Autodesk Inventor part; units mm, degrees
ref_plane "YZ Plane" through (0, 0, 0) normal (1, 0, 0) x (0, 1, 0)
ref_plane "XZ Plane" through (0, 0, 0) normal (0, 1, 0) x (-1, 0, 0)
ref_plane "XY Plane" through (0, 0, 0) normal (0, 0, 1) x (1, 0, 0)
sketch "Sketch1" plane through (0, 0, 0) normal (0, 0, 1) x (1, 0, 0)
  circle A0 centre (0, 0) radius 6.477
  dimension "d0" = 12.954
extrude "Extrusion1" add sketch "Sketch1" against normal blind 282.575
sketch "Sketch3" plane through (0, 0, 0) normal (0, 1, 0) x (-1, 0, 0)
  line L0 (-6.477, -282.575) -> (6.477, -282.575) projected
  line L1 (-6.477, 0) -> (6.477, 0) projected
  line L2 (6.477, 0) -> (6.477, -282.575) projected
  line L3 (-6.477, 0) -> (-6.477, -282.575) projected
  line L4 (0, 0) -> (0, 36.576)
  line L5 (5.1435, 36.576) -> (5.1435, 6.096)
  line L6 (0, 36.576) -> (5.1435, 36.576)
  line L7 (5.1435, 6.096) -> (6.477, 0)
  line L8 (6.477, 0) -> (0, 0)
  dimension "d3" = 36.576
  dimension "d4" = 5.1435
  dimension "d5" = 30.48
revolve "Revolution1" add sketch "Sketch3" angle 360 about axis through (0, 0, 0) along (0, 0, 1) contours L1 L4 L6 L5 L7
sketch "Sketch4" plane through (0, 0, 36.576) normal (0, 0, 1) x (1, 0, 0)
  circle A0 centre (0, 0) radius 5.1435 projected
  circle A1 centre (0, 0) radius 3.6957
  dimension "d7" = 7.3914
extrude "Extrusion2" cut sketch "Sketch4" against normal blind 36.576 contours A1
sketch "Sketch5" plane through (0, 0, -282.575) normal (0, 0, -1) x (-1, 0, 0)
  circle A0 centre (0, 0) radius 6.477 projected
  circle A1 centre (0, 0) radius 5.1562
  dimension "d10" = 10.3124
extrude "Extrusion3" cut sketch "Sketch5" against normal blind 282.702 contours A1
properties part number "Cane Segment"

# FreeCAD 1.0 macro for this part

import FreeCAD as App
import Part
import Sketcher
from FreeCAD import Vector
Q = App.Units.Quantity

doc = App.newDocument("Part")
params = doc.addObject("Spreadsheet::Sheet", "Params")
for row, (alias, value) in enumerate([
    ("sketch1_diameter", "0.51 in"),
    ("pad1_length", "11.125 in"),
    ("sketch2_height", "1.2 in"),
    ("sketch2_height2", "1.44 in"),
    ("sketch2_width", "0.255 in"),
    ("revolution_angle", "360 deg"),
    ("sketch3_diameter", "0.291 in"),
    ("pocket1_length", "1.44 in"),
    ("sketch4_diameter", "0.406 in"),
    ("pocket2_length", "11.13 in"),
], start=1):
    params.set(f"A{row}", alias)
    params.set(f"B{row}", "=" + value)
    params.setAlias(f"B{row}", alias)

body = doc.addObject("PartDesign::Body", "Body")

# Sketch on XY plane
sketch1 = doc.addObject("Sketcher::SketchObject", "Sketch")
body.addObject(sketch1)
sketch1.AttachmentSupport = (doc.XY_Plane, [""])
sketch1.MapMode = "FlatFace"
sketch1.addGeometry(Part.Circle(Vector(0, 0, 0), Vector(0, 0, 1), 6), False)
sketch1.addConstraint([
    Sketcher.Constraint("Coincident", 0, 3, -1, 1),
    Sketcher.Constraint("Diameter", 0, Q("0.51 in")),
])
sketch1.setExpression("Constraints[1]", "Params.sketch1_diameter")
pad1 = doc.addObject("PartDesign::Pad", "Pad")
body.addObject(pad1)
pad1.Profile = sketch1
pad1.setExpression("Length", "Params.pad1_length")
pad1.Reversed = True

# Sketch on XZ plane
sketch2 = doc.addObject("Sketcher::SketchObject", "Sketch001")
body.addObject(sketch2)
sketch2.AttachmentSupport = (doc.XZ_Plane, [""])
sketch2.MapMode = "FlatFace"
sketch2.addGeometry([
    Part.LineSegment(Vector(0, 0, 0), Vector(-6, 0, 0)),  # 0
    Part.LineSegment(Vector(-6, 0, 0), Vector(-5, 6, 0)),  # 1
    Part.LineSegment(Vector(-5, 6, 0), Vector(-5, 37, 0)),  # 2
    Part.LineSegment(Vector(-5, 37, 0), Vector(0, 37, 0)),  # 3
    Part.LineSegment(Vector(0, 37, 0), Vector(0, 0, 0)),  # 4
], False)
sketch2.addConstraint([
    Sketcher.Constraint("Coincident", 0, 2, 1, 1),
    Sketcher.Constraint("Coincident", 1, 2, 2, 1),
    Sketcher.Constraint("Coincident", 2, 2, 3, 1),
    Sketcher.Constraint("Coincident", 3, 2, 4, 1),
    Sketcher.Constraint("Coincident", 4, 2, 0, 1),
    Sketcher.Constraint("Horizontal", 0),
    Sketcher.Constraint("Vertical", 2),
    Sketcher.Constraint("Horizontal", 3),
    Sketcher.Constraint("Vertical", 4),
    Sketcher.Constraint("Coincident", 4, 2, -1, 1),
    Sketcher.Constraint("DistanceY", 2, 1, 2, 2, Q("1.2 in")),
    Sketcher.Constraint("DistanceY", 4, 2, 4, 1, Q("1.44 in")),
    Sketcher.Constraint("DistanceX", 3, 1, 3, 2, Q("0.2025 in")),
    Sketcher.Constraint("DistanceX", 0, 2, 0, 1, Q("0.255 in")),
])
sketch2.setExpression("Constraints[10]", "Params.sketch2_height")
sketch2.setExpression("Constraints[11]", "Params.sketch2_height2")
sketch2.setExpression("Constraints[13]", "Params.sketch2_width")
revolution = doc.addObject("PartDesign::Revolution", "Revolution")
body.addObject(revolution)
revolution.Profile = sketch2
revolution.ReferenceAxis = (sketch2, ["V_Axis"])
revolution.setExpression("Angle", "Params.revolution_angle")

# Sketch on XY plane
sketch3 = doc.addObject("Sketcher::SketchObject", "Sketch002")
body.addObject(sketch3)
sketch3.AttachmentSupport = (doc.XY_Plane, [""])
sketch3.MapMode = "FlatFace"
sketch3.AttachmentOffset = App.Placement(Vector(0, 0, 1.44 * 25.4), App.Rotation())
sketch3.addGeometry(Part.Circle(Vector(0, 0, 0), Vector(0, 0, 1), 3.7), False)
sketch3.addConstraint([
    Sketcher.Constraint("Coincident", 0, 3, -1, 1),
    Sketcher.Constraint("Diameter", 0, Q("0.291 in")),
])
sketch3.setExpression("Constraints[1]", "Params.sketch3_diameter")
pocket1 = doc.addObject("PartDesign::Pocket", "Pocket")
body.addObject(pocket1)
pocket1.Profile = sketch3
pocket1.setExpression("Length", "Params.pocket1_length")

# Sketch on XY plane
sketch4 = doc.addObject("Sketcher::SketchObject", "Sketch003")
body.addObject(sketch4)
sketch4.AttachmentSupport = (doc.XY_Plane, [""])
sketch4.MapMode = "FlatFace"
sketch4.AttachmentOffset = App.Placement(Vector(0, 0, -11.125 * 25.4), App.Rotation())
sketch4.addGeometry(Part.Circle(Vector(0, 0, 0), Vector(0, 0, 1), 5), False)
sketch4.addConstraint([
    Sketcher.Constraint("Coincident", 0, 3, -1, 1),
    Sketcher.Constraint("Diameter", 0, Q("0.406 in")),
])
sketch4.setExpression("Constraints[1]", "Params.sketch4_diameter")
pocket2 = doc.addObject("PartDesign::Pocket", "Pocket001")
body.addObject(pocket2)
pocket2.Profile = sketch4
pocket2.setExpression("Length", "Params.pocket2_length")
pocket2.Reversed = True

doc.recompute()
